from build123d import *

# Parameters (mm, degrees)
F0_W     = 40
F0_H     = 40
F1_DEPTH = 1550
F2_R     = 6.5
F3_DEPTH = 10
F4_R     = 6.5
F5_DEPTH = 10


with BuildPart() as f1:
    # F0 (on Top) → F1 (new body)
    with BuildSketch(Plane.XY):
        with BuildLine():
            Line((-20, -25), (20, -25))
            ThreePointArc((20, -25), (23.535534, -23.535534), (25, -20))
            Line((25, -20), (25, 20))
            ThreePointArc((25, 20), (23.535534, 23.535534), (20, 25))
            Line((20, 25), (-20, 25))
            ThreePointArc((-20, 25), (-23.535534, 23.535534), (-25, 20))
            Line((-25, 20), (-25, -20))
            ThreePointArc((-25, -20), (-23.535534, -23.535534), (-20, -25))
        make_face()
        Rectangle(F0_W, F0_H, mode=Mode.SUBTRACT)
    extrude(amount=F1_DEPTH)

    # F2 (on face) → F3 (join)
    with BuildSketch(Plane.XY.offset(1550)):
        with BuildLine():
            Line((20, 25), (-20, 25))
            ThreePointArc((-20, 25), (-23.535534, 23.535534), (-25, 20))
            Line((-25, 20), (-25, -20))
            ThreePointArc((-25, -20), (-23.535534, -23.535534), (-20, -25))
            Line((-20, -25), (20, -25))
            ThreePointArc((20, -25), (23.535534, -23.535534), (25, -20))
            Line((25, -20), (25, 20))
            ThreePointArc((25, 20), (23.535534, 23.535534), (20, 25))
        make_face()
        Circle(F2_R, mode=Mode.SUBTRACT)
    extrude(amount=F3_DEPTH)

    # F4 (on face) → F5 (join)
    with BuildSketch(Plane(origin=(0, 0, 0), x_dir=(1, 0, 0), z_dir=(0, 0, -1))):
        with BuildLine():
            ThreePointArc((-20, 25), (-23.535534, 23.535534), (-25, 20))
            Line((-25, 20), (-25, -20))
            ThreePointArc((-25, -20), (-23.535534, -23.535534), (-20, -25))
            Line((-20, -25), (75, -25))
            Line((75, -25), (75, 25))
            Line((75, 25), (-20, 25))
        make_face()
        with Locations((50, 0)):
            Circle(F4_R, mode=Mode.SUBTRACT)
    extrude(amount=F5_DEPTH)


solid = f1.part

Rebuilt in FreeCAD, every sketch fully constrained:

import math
import FreeCAD as App
import Part
import Sketcher


def add_polygon(sketch, points):
    """Adds a closed chain of lines whose ends are joined by coincident constraints."""
    first, n = sketch.GeometryCount, len(points)
    for a, b in zip(points, points[1:] + points[:1]):
        sketch.addGeometry(Part.LineSegment(App.Vector(*a, 0), App.Vector(*b, 0)), False)
    for i in range(n):
        sketch.addConstraint(Sketcher.Constraint("Coincident", first + i, 2, first + (i + 1) % n, 1))

doc = App.newDocument("Part")
params = doc.addObject("Spreadsheet::Sheet", "Params")
for row, (alias, value) in enumerate([
    ("sketch1_radius", "5 mm"),
    ("sketch1_width", "40 mm"),
    ("pad1_length", "1550 mm"),
    ("sketch2_diameter", "13 mm"),
    ("sketch2_radius", "5 mm"),
    ("sketch2_width", "40 mm"),
    ("pad2_length", "10 mm"),
    ("sketch3_diameter", "13 mm"),
    ("sketch3_radius", "5 mm"),
    ("sketch3_width", "95 mm"),
    ("sketch3_height", "40 mm"),
    ("pad3_length", "10 mm"),
], start=1):
    params.set(f"A{row}", alias)
    params.set(f"B{row}", "=" + value)
    params.setAlias(f"B{row}", alias)

body = doc.addObject("PartDesign::Body", "Body")

# Sketch on XY plane
sketch1 = doc.addObject("Sketcher::SketchObject", "Sketch")
body.addObject(sketch1)
sketch1.AttachmentSupport = (doc.XY_Plane, [""])
sketch1.MapMode = "FlatFace"
sketch1.addGeometry(Part.LineSegment(App.Vector(-20, -25, 0), App.Vector(20, -25, 0)), False)  # 0
sketch1.addGeometry(Part.ArcOfCircle(Part.Circle(App.Vector(20, -20, 0), App.Vector(0, 0, 1), 5), math.radians(-90), math.radians(0)), False)  # 1
sketch1.addGeometry(Part.LineSegment(App.Vector(25, -20, 0), App.Vector(25, 20, 0)), False)  # 2
sketch1.addGeometry(Part.ArcOfCircle(Part.Circle(App.Vector(20, 20, 0), App.Vector(0, 0, 1), 5), math.radians(0), math.radians(90)), False)  # 3
sketch1.addGeometry(Part.LineSegment(App.Vector(20, 25, 0), App.Vector(-20, 25, 0)), False)  # 4
sketch1.addGeometry(Part.ArcOfCircle(Part.Circle(App.Vector(-20, 20, 0), App.Vector(0, 0, 1), 5), math.radians(90), math.radians(180)), False)  # 5
sketch1.addGeometry(Part.LineSegment(App.Vector(-25, 20, 0), App.Vector(-25, -20, 0)), False)  # 6
sketch1.addGeometry(Part.ArcOfCircle(Part.Circle(App.Vector(-20, -20, 0), App.Vector(0, 0, 1), 5), math.radians(180), math.radians(270)), False)  # 7
add_polygon(sketch1, [(20, -20), (-20, -20), (-20, 20), (20, 20)])  # lines 8-11
sketch1.addConstraint([
    Sketcher.Constraint("Tangent", 0, 2, 1, 1),
    Sketcher.Constraint("Tangent", 1, 2, 2, 1),
    Sketcher.Constraint("Tangent", 2, 2, 3, 1),
    Sketcher.Constraint("Tangent", 3, 2, 4, 1),
    Sketcher.Constraint("Tangent", 4, 2, 5, 1),
    Sketcher.Constraint("Tangent", 5, 2, 6, 1),
    Sketcher.Constraint("Tangent", 6, 2, 7, 1),
    Sketcher.Constraint("Tangent", 7, 2, 0, 1),
    Sketcher.Constraint("Horizontal", 0),
    Sketcher.Constraint("Vertical", 2),
    Sketcher.Constraint("Horizontal", 4),
    Sketcher.Constraint("Vertical", 6),
    Sketcher.Constraint("Horizontal", 8),
    Sketcher.Constraint("Vertical", 9),
    Sketcher.Constraint("Horizontal", 10),
    Sketcher.Constraint("Vertical", 11),
    Sketcher.Constraint("Coincident", 8, 2, 7, 3),
    Sketcher.Constraint("Coincident", 9, 2, 5, 3),
    Sketcher.Constraint("Coincident", 10, 2, 3, 3),
    Sketcher.Constraint("Equal", 1, 3),
    Sketcher.Constraint("Symmetric", 1, 3, 5, 3, -1, 1),
    Sketcher.Constraint("Equal", 10, 2),
    Sketcher.Constraint("Radius", 1, 5.0),
    Sketcher.Constraint("DistanceX", 0, 1, 0, 2, 40.0),
])
sketch1.setExpression("Constraints[26]", "Params.sketch1_radius")
sketch1.setExpression("Constraints[27]", "Params.sketch1_width")
pad1 = doc.addObject("PartDesign::Pad", "Pad")
body.addObject(pad1)
pad1.Profile = sketch1
pad1.setExpression("Length", "Params.pad1_length")

# Sketch on XY plane
sketch2 = doc.addObject("Sketcher::SketchObject", "Sketch001")
body.addObject(sketch2)
sketch2.AttachmentSupport = (doc.XY_Plane, [""])
sketch2.MapMode = "FlatFace"
sketch2.AttachmentOffset = App.Placement(App.Vector(0, 0, 1550), App.Rotation())
sketch2.addGeometry([
    Part.LineSegment(App.Vector(20, 25, 0), App.Vector(-20, 25, 0)),  # 0
    Part.ArcOfCircle(Part.Circle(App.Vector(-20, 20, 0), App.Vector(0, 0, 1), 5), math.radians(90), math.radians(180)),  # 1
    Part.LineSegment(App.Vector(-25, 20, 0), App.Vector(-25, -20, 0)),  # 2
    Part.ArcOfCircle(Part.Circle(App.Vector(-20, -20, 0), App.Vector(0, 0, 1), 5), math.radians(180), math.radians(270)),  # 3
    Part.LineSegment(App.Vector(-20, -25, 0), App.Vector(20, -25, 0)),  # 4
    Part.ArcOfCircle(Part.Circle(App.Vector(20, -20, 0), App.Vector(0, 0, 1), 5), math.radians(-90), math.radians(0)),  # 5
    Part.LineSegment(App.Vector(25, -20, 0), App.Vector(25, 20, 0)),  # 6
    Part.ArcOfCircle(Part.Circle(App.Vector(20, 20, 0), App.Vector(0, 0, 1), 5), math.radians(0), math.radians(90)),  # 7
    Part.Circle(App.Vector(0, 0, 0), App.Vector(0, 0, 1), 6.5),  # 8
], False)
sketch2.addConstraint([
    Sketcher.Constraint("Tangent", 0, 2, 1, 1),
    Sketcher.Constraint("Tangent", 1, 2, 2, 1),
    Sketcher.Constraint("Tangent", 2, 2, 3, 1),
    Sketcher.Constraint("Tangent", 3, 2, 4, 1),
    Sketcher.Constraint("Tangent", 4, 2, 5, 1),
    Sketcher.Constraint("Tangent", 5, 2, 6, 1),
    Sketcher.Constraint("Tangent", 6, 2, 7, 1),
    Sketcher.Constraint("Tangent", 7, 2, 0, 1),
    Sketcher.Constraint("Horizontal", 0),
    Sketcher.Constraint("Vertical", 2),
    Sketcher.Constraint("Horizontal", 4),
    Sketcher.Constraint("Vertical", 6),
    Sketcher.Constraint("Coincident", 8, 3, -1, 1),
    Sketcher.Constraint("Equal", 1, 3),
    Sketcher.Constraint("Equal", 3, 5),
    Sketcher.Constraint("Equal", 5, 7),
    Sketcher.Constraint("Symmetric", 1, 3, 5, 3, -1, 1),
    Sketcher.Constraint("Equal", 4, 2),
    Sketcher.Constraint("Diameter", 8, 13.0),
    Sketcher.Constraint("Radius", 1, 5.0),
    Sketcher.Constraint("DistanceX", 0, 2, 0, 1, 40.0),
])
sketch2.setExpression("Constraints[18]", "Params.sketch2_diameter")
sketch2.setExpression("Constraints[19]", "Params.sketch2_radius")
sketch2.setExpression("Constraints[20]", "Params.sketch2_width")
pad2 = doc.addObject("PartDesign::Pad", "Pad001")
body.addObject(pad2)
pad2.Profile = sketch2
pad2.setExpression("Length", "Params.pad2_length")

# Sketch on XY plane
sketch3 = doc.addObject("Sketcher::SketchObject", "Sketch002")
body.addObject(sketch3)
sketch3.AttachmentSupport = (doc.XY_Plane, [""])
sketch3.MapMode = "FlatFace"
sketch3.addGeometry([
    Part.ArcOfCircle(Part.Circle(App.Vector(-20, -20, 0), App.Vector(0, 0, 1), 5), math.radians(180), math.radians(270)),  # 0
    Part.LineSegment(App.Vector(-25, -20, 0), App.Vector(-25, 20, 0)),  # 1
    Part.ArcOfCircle(Part.Circle(App.Vector(-20, 20, 0), App.Vector(0, 0, 1), 5), math.radians(90), math.radians(180)),  # 2
    Part.LineSegment(App.Vector(-20, 25, 0), App.Vector(75, 25, 0)),  # 3
    Part.LineSegment(App.Vector(75, 25, 0), App.Vector(75, -25, 0)),  # 4
    Part.LineSegment(App.Vector(75, -25, 0), App.Vector(-20, -25, 0)),  # 5
    Part.Circle(App.Vector(50, 0, 0), App.Vector(0, 0, 1), 6.5),  # 6
], False)
sketch3.addConstraint([
    Sketcher.Constraint("Tangent", 0, 1, 1, 1),
    Sketcher.Constraint("Tangent", 1, 2, 2, 2),
    Sketcher.Constraint("Tangent", 2, 1, 3, 1),
    Sketcher.Constraint("Coincident", 3, 2, 4, 1),
    Sketcher.Constraint("Coincident", 4, 2, 5, 1),
    Sketcher.Constraint("Tangent", 5, 2, 0, 2),
    Sketcher.Constraint("Vertical", 1),
    Sketcher.Constraint("Horizontal", 3),
    Sketcher.Constraint("Vertical", 4),
    Sketcher.Constraint("Horizontal", 5),
    Sketcher.Constraint("Equal", 0, 2),
    Sketcher.Constraint("PointOnObject", 6, 3, -1),
    Sketcher.Constraint("Diameter", 6, 13.0),
    Sketcher.Constraint("Radius", 0, 5.0),
    Sketcher.Constraint("DistanceX", 3, 1, 3, 2, 95.0),
    Sketcher.Constraint("DistanceY", 1, 1, 1, 2, 40.0),
    Sketcher.Constraint("DistanceX", 0, 3, -1, 1, 20.0),
    Sketcher.Constraint("DistanceY", 0, 3, -1, 1, 20.0),
    Sketcher.Constraint("DistanceX", -1, 1, 6, 3, 50.0),
])
sketch3.setExpression("Constraints[12]", "Params.sketch3_diameter")
sketch3.setExpression("Constraints[13]", "Params.sketch3_radius")
sketch3.setExpression("Constraints[14]", "Params.sketch3_width")
sketch3.setExpression("Constraints[15]", "Params.sketch3_height")
pad3 = doc.addObject("PartDesign::Pad", "Pad002")
body.addObject(pad3)
pad3.Profile = sketch3
pad3.setExpression("Length", "Params.pad3_length")
pad3.Reversed = True

doc.recompute()
